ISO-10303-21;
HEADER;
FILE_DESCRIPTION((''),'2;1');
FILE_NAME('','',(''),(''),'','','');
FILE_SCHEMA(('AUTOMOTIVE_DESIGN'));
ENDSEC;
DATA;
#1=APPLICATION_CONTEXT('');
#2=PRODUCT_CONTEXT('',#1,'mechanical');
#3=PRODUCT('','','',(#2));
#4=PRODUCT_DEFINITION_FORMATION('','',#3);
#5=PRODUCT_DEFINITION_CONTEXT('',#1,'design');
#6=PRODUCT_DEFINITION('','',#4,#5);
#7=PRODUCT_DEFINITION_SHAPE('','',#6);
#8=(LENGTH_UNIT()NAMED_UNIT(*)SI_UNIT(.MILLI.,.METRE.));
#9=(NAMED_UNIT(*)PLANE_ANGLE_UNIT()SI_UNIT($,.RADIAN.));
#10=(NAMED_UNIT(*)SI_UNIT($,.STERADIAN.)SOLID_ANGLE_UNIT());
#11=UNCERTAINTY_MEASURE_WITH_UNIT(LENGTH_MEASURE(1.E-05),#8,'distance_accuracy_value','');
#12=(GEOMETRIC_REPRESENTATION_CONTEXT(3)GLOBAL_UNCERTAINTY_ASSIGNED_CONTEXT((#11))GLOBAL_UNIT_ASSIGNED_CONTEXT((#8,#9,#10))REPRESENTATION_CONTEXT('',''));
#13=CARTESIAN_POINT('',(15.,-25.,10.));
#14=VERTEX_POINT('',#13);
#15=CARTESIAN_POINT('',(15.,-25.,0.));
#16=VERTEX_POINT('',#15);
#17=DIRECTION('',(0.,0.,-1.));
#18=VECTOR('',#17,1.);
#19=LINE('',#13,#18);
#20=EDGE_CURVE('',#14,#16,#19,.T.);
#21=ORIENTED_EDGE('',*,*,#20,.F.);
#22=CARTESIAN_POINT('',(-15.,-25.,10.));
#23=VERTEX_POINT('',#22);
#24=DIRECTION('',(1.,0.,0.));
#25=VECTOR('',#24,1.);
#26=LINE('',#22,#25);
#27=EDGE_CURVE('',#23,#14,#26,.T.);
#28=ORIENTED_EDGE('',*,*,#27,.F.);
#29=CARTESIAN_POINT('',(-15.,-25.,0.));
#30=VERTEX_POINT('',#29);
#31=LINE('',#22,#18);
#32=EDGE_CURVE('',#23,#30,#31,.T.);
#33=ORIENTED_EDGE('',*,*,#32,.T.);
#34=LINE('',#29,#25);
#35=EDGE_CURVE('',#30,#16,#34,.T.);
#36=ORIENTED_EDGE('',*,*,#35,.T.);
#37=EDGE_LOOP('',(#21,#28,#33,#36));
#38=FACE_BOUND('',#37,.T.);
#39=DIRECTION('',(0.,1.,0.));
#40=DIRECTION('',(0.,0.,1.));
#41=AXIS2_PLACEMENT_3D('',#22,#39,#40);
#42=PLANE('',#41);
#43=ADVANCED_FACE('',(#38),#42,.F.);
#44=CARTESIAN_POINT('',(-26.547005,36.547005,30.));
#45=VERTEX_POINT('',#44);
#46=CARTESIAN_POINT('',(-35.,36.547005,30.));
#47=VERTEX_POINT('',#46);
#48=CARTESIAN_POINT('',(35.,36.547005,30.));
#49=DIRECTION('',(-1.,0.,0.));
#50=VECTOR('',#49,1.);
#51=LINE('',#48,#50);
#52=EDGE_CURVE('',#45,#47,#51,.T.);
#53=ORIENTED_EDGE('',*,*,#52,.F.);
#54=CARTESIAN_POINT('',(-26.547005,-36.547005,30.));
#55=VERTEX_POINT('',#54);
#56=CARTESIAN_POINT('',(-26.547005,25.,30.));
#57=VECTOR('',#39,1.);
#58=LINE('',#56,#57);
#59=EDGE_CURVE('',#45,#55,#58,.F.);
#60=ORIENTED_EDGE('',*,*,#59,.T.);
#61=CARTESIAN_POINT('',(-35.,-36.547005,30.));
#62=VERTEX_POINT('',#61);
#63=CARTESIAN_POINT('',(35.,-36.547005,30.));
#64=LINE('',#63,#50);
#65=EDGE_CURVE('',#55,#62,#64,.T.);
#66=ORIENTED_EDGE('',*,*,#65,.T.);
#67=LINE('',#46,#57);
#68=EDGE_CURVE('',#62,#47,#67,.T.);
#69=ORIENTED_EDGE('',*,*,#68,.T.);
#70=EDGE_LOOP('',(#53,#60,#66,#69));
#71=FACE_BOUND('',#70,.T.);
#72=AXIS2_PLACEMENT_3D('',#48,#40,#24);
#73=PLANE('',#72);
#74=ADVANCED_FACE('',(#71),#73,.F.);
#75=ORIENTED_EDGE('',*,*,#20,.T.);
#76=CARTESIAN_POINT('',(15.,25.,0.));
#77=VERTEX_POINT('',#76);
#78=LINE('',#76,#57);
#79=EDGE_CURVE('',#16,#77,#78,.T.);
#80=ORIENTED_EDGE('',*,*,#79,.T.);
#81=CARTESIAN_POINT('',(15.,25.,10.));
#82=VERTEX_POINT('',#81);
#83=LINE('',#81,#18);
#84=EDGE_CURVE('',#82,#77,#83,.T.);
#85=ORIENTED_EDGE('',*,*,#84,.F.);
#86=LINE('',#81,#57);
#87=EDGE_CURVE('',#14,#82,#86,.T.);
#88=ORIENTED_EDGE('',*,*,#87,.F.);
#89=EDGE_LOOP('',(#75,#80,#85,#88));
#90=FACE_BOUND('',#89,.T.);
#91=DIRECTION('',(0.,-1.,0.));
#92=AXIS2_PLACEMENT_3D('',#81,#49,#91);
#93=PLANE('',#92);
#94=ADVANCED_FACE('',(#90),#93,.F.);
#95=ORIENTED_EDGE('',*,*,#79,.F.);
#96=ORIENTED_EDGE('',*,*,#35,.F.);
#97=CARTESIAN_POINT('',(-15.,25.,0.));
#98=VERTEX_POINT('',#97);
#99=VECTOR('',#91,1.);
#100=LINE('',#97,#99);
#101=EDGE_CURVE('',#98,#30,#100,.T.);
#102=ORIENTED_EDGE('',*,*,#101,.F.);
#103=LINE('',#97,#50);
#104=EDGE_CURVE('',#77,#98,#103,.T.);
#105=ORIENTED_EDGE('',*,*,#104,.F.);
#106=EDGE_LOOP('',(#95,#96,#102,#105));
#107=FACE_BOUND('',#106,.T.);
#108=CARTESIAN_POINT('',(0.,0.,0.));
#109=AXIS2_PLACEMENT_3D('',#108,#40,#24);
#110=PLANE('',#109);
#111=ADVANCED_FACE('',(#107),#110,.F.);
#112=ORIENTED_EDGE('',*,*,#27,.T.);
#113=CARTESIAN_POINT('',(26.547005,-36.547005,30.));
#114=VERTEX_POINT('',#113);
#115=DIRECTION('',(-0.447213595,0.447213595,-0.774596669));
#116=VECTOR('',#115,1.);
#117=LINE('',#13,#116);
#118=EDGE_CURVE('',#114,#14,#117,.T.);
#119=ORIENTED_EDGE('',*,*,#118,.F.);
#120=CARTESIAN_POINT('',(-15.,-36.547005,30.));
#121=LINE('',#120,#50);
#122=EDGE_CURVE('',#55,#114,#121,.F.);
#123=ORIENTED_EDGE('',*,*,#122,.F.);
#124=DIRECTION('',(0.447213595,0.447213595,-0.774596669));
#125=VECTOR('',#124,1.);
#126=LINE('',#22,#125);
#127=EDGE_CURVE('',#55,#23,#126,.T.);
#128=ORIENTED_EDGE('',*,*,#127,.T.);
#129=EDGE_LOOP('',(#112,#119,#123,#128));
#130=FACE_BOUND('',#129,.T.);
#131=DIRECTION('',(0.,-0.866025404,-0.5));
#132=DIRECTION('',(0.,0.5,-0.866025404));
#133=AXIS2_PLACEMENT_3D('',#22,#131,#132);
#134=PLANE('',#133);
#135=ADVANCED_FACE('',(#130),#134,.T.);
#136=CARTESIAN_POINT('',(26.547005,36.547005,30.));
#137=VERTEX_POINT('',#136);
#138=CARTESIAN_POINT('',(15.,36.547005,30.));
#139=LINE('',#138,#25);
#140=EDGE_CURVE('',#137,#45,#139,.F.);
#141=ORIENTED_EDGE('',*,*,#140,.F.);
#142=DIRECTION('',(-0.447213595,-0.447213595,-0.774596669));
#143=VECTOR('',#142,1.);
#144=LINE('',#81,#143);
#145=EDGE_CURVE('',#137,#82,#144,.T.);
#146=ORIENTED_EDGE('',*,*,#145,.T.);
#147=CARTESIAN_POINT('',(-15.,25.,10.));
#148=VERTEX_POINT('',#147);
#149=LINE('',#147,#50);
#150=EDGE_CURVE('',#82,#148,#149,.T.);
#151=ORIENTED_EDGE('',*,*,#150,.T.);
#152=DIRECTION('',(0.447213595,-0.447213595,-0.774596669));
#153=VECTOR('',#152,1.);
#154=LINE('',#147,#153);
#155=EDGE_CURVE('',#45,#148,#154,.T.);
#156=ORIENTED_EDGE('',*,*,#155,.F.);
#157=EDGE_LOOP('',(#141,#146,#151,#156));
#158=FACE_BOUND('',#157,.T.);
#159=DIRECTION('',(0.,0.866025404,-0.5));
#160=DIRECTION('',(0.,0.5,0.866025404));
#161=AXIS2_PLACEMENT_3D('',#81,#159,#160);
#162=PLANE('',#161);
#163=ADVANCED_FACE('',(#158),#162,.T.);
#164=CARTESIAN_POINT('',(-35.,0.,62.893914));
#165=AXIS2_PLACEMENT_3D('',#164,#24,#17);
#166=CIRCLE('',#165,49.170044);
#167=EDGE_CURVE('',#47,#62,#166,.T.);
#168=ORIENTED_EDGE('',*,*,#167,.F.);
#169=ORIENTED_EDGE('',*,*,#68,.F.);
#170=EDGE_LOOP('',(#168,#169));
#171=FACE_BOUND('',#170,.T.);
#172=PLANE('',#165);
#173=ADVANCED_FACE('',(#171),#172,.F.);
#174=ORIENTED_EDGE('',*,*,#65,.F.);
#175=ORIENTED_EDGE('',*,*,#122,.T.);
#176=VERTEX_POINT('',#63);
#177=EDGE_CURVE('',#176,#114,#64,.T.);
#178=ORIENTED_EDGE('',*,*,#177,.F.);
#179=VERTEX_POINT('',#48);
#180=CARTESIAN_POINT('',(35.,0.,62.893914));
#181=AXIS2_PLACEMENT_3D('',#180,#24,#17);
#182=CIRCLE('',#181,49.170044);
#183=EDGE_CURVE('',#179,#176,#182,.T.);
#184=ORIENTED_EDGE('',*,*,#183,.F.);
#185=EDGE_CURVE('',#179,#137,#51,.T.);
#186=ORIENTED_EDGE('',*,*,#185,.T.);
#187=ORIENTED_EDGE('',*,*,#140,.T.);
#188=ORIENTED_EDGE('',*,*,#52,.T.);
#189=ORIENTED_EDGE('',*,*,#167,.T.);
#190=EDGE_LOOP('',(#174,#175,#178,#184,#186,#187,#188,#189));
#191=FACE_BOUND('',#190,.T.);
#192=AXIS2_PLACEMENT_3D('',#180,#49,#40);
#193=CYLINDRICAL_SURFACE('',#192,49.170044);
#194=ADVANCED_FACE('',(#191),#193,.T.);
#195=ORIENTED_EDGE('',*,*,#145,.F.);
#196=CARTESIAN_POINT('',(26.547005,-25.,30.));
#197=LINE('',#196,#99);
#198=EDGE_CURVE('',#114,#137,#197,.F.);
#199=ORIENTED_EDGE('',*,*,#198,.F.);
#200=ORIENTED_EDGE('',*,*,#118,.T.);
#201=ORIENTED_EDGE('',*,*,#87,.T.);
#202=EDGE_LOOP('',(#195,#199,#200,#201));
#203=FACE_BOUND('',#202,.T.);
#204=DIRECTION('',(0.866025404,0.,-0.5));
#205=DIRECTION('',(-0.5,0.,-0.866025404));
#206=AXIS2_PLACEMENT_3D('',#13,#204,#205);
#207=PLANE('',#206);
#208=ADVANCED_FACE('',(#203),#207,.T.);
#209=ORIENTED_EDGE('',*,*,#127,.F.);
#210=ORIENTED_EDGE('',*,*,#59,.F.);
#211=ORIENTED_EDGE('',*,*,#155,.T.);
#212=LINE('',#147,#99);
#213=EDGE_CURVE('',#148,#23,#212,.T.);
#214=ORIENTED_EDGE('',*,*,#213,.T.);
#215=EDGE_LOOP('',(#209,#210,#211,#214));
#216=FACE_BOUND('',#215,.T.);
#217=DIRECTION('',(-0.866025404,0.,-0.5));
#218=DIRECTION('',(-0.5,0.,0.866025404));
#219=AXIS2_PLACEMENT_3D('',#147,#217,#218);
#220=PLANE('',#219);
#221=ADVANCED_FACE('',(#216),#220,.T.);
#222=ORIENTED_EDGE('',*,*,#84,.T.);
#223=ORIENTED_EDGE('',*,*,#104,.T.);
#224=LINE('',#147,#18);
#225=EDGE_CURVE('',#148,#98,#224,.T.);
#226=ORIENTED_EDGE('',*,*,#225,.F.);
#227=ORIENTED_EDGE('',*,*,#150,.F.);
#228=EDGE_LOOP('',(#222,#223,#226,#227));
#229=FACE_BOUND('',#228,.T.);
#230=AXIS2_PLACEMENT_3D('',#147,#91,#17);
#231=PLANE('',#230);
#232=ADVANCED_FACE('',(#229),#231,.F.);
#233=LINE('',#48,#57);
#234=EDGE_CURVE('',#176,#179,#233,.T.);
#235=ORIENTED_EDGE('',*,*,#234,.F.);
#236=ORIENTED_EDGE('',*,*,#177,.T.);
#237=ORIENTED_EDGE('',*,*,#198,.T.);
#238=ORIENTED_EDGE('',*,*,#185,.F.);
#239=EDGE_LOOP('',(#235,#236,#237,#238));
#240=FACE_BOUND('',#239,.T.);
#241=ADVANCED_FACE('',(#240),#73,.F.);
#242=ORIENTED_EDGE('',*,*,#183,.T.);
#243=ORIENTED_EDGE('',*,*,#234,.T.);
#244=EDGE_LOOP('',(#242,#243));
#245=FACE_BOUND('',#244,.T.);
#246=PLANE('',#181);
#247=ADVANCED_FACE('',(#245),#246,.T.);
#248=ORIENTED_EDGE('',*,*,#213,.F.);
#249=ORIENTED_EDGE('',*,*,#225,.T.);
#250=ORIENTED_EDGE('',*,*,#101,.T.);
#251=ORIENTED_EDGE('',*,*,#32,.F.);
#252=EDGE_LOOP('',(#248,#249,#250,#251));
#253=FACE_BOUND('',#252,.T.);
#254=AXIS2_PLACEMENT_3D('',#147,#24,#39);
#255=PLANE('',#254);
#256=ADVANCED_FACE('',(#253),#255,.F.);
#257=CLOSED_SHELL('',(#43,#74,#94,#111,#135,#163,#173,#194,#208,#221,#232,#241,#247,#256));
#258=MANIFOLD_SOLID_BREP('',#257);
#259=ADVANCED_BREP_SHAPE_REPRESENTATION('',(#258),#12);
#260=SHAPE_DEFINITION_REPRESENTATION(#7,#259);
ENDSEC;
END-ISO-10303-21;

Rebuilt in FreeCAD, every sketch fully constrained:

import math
import FreeCAD as App
import Part
import Sketcher


def faces_at(feature, points):
    """Names of the faces that lie closest to the given points."""
    faces = feature.Shape.Faces
    near = lambda p: min(range(len(faces)), key=lambda i: faces[i].distToShape(Part.Vertex(*p))[0])
    return sorted({f"Face{near(p) + 1}" for p in points})


def add_polygon(sketch, points):
    """Adds a closed chain of lines whose ends are joined by coincident constraints."""
    first, n = sketch.GeometryCount, len(points)
    for a, b in zip(points, points[1:] + points[:1]):
        sketch.addGeometry(Part.LineSegment(App.Vector(*a, 0), App.Vector(*b, 0)), False)
    for i in range(n):
        sketch.addConstraint(Sketcher.Constraint("Coincident", first + i, 2, first + (i + 1) % n, 1))

doc = App.newDocument("Part")
body = doc.addObject("PartDesign::Body", "Body")

sketch1 = body.newObject("Sketcher::SketchObject", "Sketch")
sketch1.AttachmentSupport = (doc.getObject("XY_Plane"), [""])
sketch1.MapMode = "FlatFace"
add_polygon(sketch1, [(-15, 25), (-15, -25), (15, -25), (15, 25)])
sketch1.addConstraint(Sketcher.Constraint("Vertical", 0))
sketch1.addConstraint(Sketcher.Constraint("Horizontal", 1))
sketch1.addConstraint(Sketcher.Constraint("Vertical", 2))
sketch1.addConstraint(Sketcher.Constraint("Horizontal", 3))
sketch1.addConstraint(Sketcher.Constraint("Symmetric", 0, 2, 2, 2, -1, 1))
sketch1.addConstraint(Sketcher.Constraint("DistanceX", 1, 1, 1, 2, 30.0))
sketch1.addConstraint(Sketcher.Constraint("DistanceY", 0, 2, 0, 1, 50.0))
pad1 = body.newObject("PartDesign::Pad", "Pad")
pad1.Profile = sketch1
pad1.Length = 10
body2 = doc.addObject("PartDesign::Body", "Body001")

sketch2 = body2.newObject("Sketcher::SketchObject", "Sketch001")
sketch2.AttachmentSupport = (doc.getObject("XY_Plane001"), [""])
sketch2.MapMode = "FlatFace"
sketch2.AttachmentOffset = App.Placement(App.Vector(0, 0, 10), App.Rotation())
add_polygon(sketch2, [(-15, 25), (-15, -25), (15, -25), (15, 25)])
sketch2.addConstraint(Sketcher.Constraint("Vertical", 0))
sketch2.addConstraint(Sketcher.Constraint("Horizontal", 1))
sketch2.addConstraint(Sketcher.Constraint("Vertical", 2))
sketch2.addConstraint(Sketcher.Constraint("Horizontal", 3))
sketch2.addConstraint(Sketcher.Constraint("Symmetric", 0, 2, 2, 2, -1, 1))
sketch2.addConstraint(Sketcher.Constraint("DistanceX", 1, 1, 1, 2, 30.0))
sketch2.addConstraint(Sketcher.Constraint("DistanceY", 0, 2, 0, 1, 50.0))
pad2 = body2.newObject("PartDesign::Pad", "Pad001")
pad2.Profile = sketch2
pad2.Length = 20
doc.recompute()

datumplane = body2.newObject("PartDesign::Plane", "DatumPlane")
datumplane.AttachmentSupport = (doc.getObject("XY_Plane001"), [""])
datumplane.MapMode = "FlatFace"
datumplane.AttachmentOffset = App.Placement(App.Vector(0, 0, 10), App.Rotation())
draft = body2.newObject("PartDesign::Draft", "Draft")
draft.Base = (pad2, faces_at(pad2, [
    (15, 0, 20),
    (0, 25, 20),
    (-15, 0, 20),
    (0, -25, 20),
]))
draft.NeutralPlane = (datumplane, [""])
draft.Angle = 30
draft.Reversed = True
doc.recompute()

boolean = body.newObject("PartDesign::Boolean", "Boolean")
boolean.Type = "Fuse"
boolean.addObjects([body2])

sketch3 = body.newObject("Sketcher::SketchObject", "Sketch002")
sketch3.AttachmentSupport = (doc.getObject("YZ_Plane"), [""])
sketch3.MapMode = "FlatFace"
sketch3.addGeometry(Part.LineSegment(App.Vector(-36.547005, 30, 0), App.Vector(36.547005, 30, 0)), False)
sketch3.addGeometry(Part.ArcOfCircle(Part.Circle(App.Vector(0, 62.893914, 0), App.Vector(0, 0, 1), 49.170044), math.radians(-41.988606), math.radians(221.988606)), False)
sketch3.addConstraint(Sketcher.Constraint("Coincident", 0, 1, 1, 2))
sketch3.addConstraint(Sketcher.Constraint("Coincident", 1, 1, 0, 2))
sketch3.addConstraint(Sketcher.Constraint("Horizontal", 0))
sketch3.addConstraint(Sketcher.Constraint("PointOnObject", 1, 3, -2))
sketch3.addConstraint(Sketcher.Constraint("DistanceY", -1, 1, 0, 1, 30.0))
sketch3.addConstraint(Sketcher.Constraint("Radius", 1, 49.170044))
sketch3.addConstraint(Sketcher.Constraint("DistanceX", 0, 1, 0, 2, 73.094011))
pad3 = body.newObject("PartDesign::Pad", "Pad002")
pad3.Profile = sketch3
pad3.Length = 70
pad3.Midplane = True

doc.recompute()
